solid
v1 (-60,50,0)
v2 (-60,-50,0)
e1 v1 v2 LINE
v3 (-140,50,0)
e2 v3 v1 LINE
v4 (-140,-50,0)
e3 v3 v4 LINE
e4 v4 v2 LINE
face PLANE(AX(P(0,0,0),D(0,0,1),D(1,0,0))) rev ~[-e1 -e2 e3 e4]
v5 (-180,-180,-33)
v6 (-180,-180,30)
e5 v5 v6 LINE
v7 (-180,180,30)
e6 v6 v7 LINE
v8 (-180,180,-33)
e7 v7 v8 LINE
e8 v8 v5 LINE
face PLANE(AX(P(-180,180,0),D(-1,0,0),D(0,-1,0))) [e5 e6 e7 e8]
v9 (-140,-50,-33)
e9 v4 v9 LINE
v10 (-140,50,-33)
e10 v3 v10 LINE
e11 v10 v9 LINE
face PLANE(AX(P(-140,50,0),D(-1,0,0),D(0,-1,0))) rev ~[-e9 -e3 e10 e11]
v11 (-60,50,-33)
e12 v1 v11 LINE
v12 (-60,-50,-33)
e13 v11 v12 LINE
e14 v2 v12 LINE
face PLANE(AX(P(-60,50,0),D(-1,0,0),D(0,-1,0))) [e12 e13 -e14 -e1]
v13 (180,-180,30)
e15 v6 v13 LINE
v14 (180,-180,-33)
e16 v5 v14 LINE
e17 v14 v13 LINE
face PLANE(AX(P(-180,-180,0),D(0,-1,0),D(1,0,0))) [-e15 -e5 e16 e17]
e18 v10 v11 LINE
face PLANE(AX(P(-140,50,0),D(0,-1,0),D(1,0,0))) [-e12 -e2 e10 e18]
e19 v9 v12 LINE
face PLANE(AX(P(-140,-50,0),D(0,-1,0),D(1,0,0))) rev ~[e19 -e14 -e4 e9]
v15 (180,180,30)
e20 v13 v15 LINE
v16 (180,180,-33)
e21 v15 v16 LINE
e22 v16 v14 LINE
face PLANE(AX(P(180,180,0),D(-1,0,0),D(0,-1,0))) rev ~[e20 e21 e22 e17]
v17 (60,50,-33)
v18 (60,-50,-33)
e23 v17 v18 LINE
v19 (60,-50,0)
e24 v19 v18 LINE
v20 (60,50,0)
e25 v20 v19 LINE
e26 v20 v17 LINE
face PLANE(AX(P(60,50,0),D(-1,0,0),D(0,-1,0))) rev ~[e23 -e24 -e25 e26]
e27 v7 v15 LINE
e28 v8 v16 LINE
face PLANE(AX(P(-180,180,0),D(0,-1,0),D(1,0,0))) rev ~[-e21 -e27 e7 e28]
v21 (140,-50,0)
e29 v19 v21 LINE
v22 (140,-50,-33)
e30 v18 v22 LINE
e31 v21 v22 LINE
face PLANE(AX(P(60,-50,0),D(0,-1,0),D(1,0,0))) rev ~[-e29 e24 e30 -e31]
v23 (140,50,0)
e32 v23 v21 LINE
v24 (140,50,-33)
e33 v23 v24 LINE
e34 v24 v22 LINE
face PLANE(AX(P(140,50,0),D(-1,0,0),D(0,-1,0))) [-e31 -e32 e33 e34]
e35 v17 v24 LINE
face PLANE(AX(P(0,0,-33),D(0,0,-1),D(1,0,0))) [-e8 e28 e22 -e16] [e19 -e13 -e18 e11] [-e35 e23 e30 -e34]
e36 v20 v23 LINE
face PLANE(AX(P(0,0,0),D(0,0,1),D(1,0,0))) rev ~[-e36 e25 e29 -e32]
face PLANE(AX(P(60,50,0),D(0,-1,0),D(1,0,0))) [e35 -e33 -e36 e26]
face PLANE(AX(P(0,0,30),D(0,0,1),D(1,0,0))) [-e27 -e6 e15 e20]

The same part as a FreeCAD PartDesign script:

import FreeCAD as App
import Part
import Sketcher
from FreeCAD import Vector
Q = App.Units.Quantity


def add_polygon(sketch, points):
    """Adds a closed chain of lines whose ends are joined by coincident constraints."""
    first, n = sketch.GeometryCount, len(points)
    for a, b in zip(points, points[1:] + points[:1]):
        sketch.addGeometry(Part.LineSegment(App.Vector(*a, 0), App.Vector(*b, 0)), False)
    for i in range(n):
        sketch.addConstraint(Sketcher.Constraint("Coincident", first + i, 2, first + (i + 1) % n, 1))

doc = App.newDocument("Part")
body = doc.addObject("PartDesign::Body", "Body")

# Sketch on XY plane
sketch1 = body.newObject("Sketcher::SketchObject", "Sketch")
sketch1.AttachmentSupport = (doc.getObject("XY_Plane"), [""])
sketch1.MapMode = "FlatFace"
add_polygon(sketch1, [(-180, 180), (-180, -180), (180, -180), (180, 180)])  # lines 0-3
sketch1.addConstraint([
    Sketcher.Constraint("Vertical", 0),
    Sketcher.Constraint("Horizontal", 1),
    Sketcher.Constraint("Vertical", 2),
    Sketcher.Constraint("Horizontal", 3),
    Sketcher.Constraint("Symmetric", 0, 2, 2, 2, -1, 1),
    Sketcher.Constraint("Equal", 3, 0),
    Sketcher.Constraint("DistanceX", 1, 1, 1, 2, Q("360 mm")),
])
pad1 = body.newObject("PartDesign::Pad", "Pad")
pad1.Profile = sketch1
pad1.Length = 30

# Sketch on XY plane
sketch2 = body.newObject("Sketcher::SketchObject", "Sketch001")
sketch2.AttachmentSupport = (doc.getObject("XY_Plane"), [""])
sketch2.MapMode = "FlatFace"
add_polygon(sketch2, [(-180, -180), (-180, 180), (180, 180), (180, -180)])  # lines 0-3
add_polygon(sketch2, [(-60, 50), (-140, 50), (-140, -50), (-60, -50)])  # lines 4-7
add_polygon(sketch2, [(140, 50), (60, 50), (60, -50), (140, -50)])  # lines 8-11
sketch2.addConstraint([
    Sketcher.Constraint("Vertical", 0),
    Sketcher.Constraint("Horizontal", 1),
    Sketcher.Constraint("Vertical", 2),
    Sketcher.Constraint("Horizontal", 3),
    Sketcher.Constraint("Horizontal", 4),
    Sketcher.Constraint("Vertical", 5),
    Sketcher.Constraint("Horizontal", 6),
    Sketcher.Constraint("Vertical", 7),
    Sketcher.Constraint("Horizontal", 8),
    Sketcher.Constraint("Vertical", 9),
    Sketcher.Constraint("Horizontal", 10),
    Sketcher.Constraint("Vertical", 11),
    Sketcher.Constraint("Symmetric", 0, 2, 2, 2, -1, 1),
    Sketcher.Constraint("Symmetric", 6, 2, 8, 2, -1, 1),
    Sketcher.Constraint("Symmetric", 4, 2, 10, 2, -1, 1),
    Sketcher.Constraint("Horizontal", 7, 2, 8, 2),
    Sketcher.Constraint("Equal", 3, 0),
    Sketcher.Constraint("DistanceX", 1, 1, 1, 2, Q("360 mm")),
    Sketcher.Constraint("DistanceX", 4, 2, 4, 1, Q("80 mm")),
    Sketcher.Constraint("DistanceY", 5, 2, 5, 1, Q("100 mm")),
    Sketcher.Constraint("DistanceX", 4, 2, -1, 1, Q("140 mm")),
])
pad2 = body.newObject("PartDesign::Pad", "Pad001")
pad2.Profile = sketch2
pad2.Length = 33
pad2.Reversed = True

doc.recompute()
